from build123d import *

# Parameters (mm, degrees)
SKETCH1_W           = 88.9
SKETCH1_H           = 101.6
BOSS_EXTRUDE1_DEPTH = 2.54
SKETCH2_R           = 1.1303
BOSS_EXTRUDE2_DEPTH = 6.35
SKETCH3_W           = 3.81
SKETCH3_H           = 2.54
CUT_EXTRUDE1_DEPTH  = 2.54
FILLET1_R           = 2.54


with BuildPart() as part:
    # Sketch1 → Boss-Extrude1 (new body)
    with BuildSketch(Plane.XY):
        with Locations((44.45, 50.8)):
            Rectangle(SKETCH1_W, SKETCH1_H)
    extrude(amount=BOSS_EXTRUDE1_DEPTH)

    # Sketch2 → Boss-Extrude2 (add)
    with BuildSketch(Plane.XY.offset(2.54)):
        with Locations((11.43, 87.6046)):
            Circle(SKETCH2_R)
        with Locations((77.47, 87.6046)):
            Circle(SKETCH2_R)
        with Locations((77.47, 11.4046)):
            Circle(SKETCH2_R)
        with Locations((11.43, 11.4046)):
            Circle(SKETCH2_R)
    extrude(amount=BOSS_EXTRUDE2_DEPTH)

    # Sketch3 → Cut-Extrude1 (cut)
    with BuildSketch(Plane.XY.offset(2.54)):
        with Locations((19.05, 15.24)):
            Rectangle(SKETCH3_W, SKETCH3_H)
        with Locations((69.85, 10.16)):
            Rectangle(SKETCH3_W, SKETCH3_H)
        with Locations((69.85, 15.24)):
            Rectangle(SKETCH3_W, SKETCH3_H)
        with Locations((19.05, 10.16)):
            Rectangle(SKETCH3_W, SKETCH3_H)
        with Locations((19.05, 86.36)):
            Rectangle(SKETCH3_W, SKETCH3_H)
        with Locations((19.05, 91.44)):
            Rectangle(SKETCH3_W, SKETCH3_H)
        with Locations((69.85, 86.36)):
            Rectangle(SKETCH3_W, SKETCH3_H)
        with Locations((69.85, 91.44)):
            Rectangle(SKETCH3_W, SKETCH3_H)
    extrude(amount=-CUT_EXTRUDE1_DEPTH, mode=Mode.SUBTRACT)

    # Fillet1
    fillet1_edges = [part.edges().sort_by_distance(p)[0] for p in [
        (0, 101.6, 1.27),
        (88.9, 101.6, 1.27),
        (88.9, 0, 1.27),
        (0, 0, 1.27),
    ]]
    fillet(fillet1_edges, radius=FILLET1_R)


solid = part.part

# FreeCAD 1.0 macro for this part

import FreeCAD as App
import Part
import Sketcher
Q = App.Units.Quantity


def edges_at(feature, points):
    """Names of the edges that pass closest to the given points."""
    edges = feature.Shape.Edges
    near = lambda p: min(range(len(edges)), key=lambda i: edges[i].distToShape(Part.Vertex(*p))[0])
    return sorted({f"Edge{near(p) + 1}" for p in points})


def add_polygon(sketch, points):
    """Adds a closed chain of lines whose ends are joined by coincident constraints."""
    first, n = sketch.GeometryCount, len(points)
    for a, b in zip(points, points[1:] + points[:1]):
        sketch.addGeometry(Part.LineSegment(App.Vector(*a, 0), App.Vector(*b, 0)), False)
    for i in range(n):
        sketch.addConstraint(Sketcher.Constraint("Coincident", first + i, 2, first + (i + 1) % n, 1))

doc = App.newDocument("Part")
body = doc.addObject("PartDesign::Body", "Body")

# Sketch on XY plane
sketch1 = doc.addObject("Sketcher::SketchObject", "Sketch")
body.addObject(sketch1)
sketch1.AttachmentSupport = (doc.XY_Plane, [""])
sketch1.MapMode = "FlatFace"
add_polygon(sketch1, [(0, 102), (0, 0), (89, 0), (89, 102)])  # lines 0-3
sketch1.addConstraint(Sketcher.Constraint("Vertical", 0))
sketch1.addConstraint(Sketcher.Constraint("Horizontal", 1))
sketch1.addConstraint(Sketcher.Constraint("Vertical", 2))
sketch1.addConstraint(Sketcher.Constraint("Horizontal", 3))
sketch1.addConstraint(Sketcher.Constraint("Coincident", 0, 2, -1, 1))
sketch1.addConstraint(Sketcher.Constraint("DistanceY", 0, 2, 0, 1, Q("4 in")))
sketch1.addConstraint(Sketcher.Constraint("DistanceX", 1, 1, 1, 2, Q("3.5 in")))
pad1 = doc.addObject("PartDesign::Pad", "Pad")
body.addObject(pad1)
pad1.Profile = sketch1
pad1.Length = Q("0.1 in")

# Sketch on XY plane
sketch2 = doc.addObject("Sketcher::SketchObject", "Sketch001")
body.addObject(sketch2)
sketch2.AttachmentSupport = (doc.XY_Plane, [""])
sketch2.MapMode = "FlatFace"
sketch2.AttachmentOffset = App.Placement(App.Vector(0, 0, 0.1 * 25.4), App.Rotation())
sketch2.addGeometry(Part.Circle(App.Vector(11.4, 87.6, 0), App.Vector(0, 0, 1), 1.1), False)
sketch2.addGeometry(Part.Circle(App.Vector(77.5, 87.6, 0), App.Vector(0, 0, 1), 1.1), False)
sketch2.addGeometry(Part.Circle(App.Vector(77.5, 11.4, 0), App.Vector(0, 0, 1), 1.1), False)
sketch2.addGeometry(Part.Circle(App.Vector(11.4, 11.4, 0), App.Vector(0, 0, 1), 1.1), False)
sketch2.addConstraint(Sketcher.Constraint("Equal", 0, 1))
sketch2.addConstraint(Sketcher.Constraint("Equal", 1, 2))
sketch2.addConstraint(Sketcher.Constraint("Equal", 2, 3))
sketch2.addConstraint(Sketcher.Constraint("Horizontal", 0, 3, 1, 3))
sketch2.addConstraint(Sketcher.Constraint("Horizontal", 2, 3, 3, 3))
sketch2.addConstraint(Sketcher.Constraint("Vertical", 1, 3, 2, 3))
sketch2.addConstraint(Sketcher.Constraint("Vertical", 0, 3, 3, 3))
sketch2.addConstraint(Sketcher.Constraint("Diameter", 0, Q("0.089 in")))
sketch2.addConstraint(Sketcher.Constraint("DistanceY", 2, 3, 1, 3, Q("3 in")))
sketch2.addConstraint(Sketcher.Constraint("DistanceX", 0, 3, 1, 3, Q("2.6 in")))
sketch2.addConstraint(Sketcher.Constraint("DistanceX", -1, 1, 0, 3, Q("0.45 in")))
sketch2.addConstraint(Sketcher.Constraint("DistanceY", -1, 1, 0, 3, Q("3.449 in")))
pad2 = doc.addObject("PartDesign::Pad", "Pad001")
body.addObject(pad2)
pad2.Profile = sketch2
pad2.Length = Q("0.25 in")

# Sketch on XY plane
sketch3 = doc.addObject("Sketcher::SketchObject", "Sketch002")
body.addObject(sketch3)
sketch3.AttachmentSupport = (doc.XY_Plane, [""])
sketch3.MapMode = "FlatFace"
sketch3.AttachmentOffset = App.Placement(App.Vector(0, 0, 0.1 * 25.4), App.Rotation())
add_polygon(sketch3, [(17.1, 16.5), (17.1, 14), (21, 14), (21, 16.5)])  # lines 0-3
add_polygon(sketch3, [(67.9, 11.4), (67.9, 8.9), (71.8, 8.9), (71.8, 11.4)])  # lines 4-7
add_polygon(sketch3, [(67.9, 16.5), (67.9, 14), (71.8, 14), (71.8, 16.5)])  # lines 8-11
add_polygon(sketch3, [(17.1, 11.4), (17.1, 8.9), (21, 8.9), (21, 11.4)])  # lines 12-15
add_polygon(sketch3, [(17.1, 87.6), (17.1, 85.1), (21, 85.1), (21, 87.6)])  # lines 16-19
add_polygon(sketch3, [(17.1, 92.7), (17.1, 90.2), (21, 90.2), (21, 92.7)])  # lines 20-23
add_polygon(sketch3, [(67.9, 87.6), (67.9, 85.1), (71.8, 85.1), (71.8, 87.6)])  # lines 24-27
add_polygon(sketch3, [(67.9, 92.7), (67.9, 90.2), (71.8, 90.2), (71.8, 92.7)])  # lines 28-31
sketch3.addConstraint(Sketcher.Constraint("Vertical", 0))
sketch3.addConstraint(Sketcher.Constraint("Horizontal", 1))
sketch3.addConstraint(Sketcher.Constraint("Vertical", 2))
sketch3.addConstraint(Sketcher.Constraint("Horizontal", 3))
sketch3.addConstraint(Sketcher.Constraint("Vertical", 4))
sketch3.addConstraint(Sketcher.Constraint("Horizontal", 5))
sketch3.addConstraint(Sketcher.Constraint("Vertical", 6))
sketch3.addConstraint(Sketcher.Constraint("Horizontal", 7))
sketch3.addConstraint(Sketcher.Constraint("Vertical", 8))
sketch3.addConstraint(Sketcher.Constraint("Horizontal", 9))
sketch3.addConstraint(Sketcher.Constraint("Vertical", 10))
sketch3.addConstraint(Sketcher.Constraint("Horizontal", 11))
sketch3.addConstraint(Sketcher.Constraint("Vertical", 12))
sketch3.addConstraint(Sketcher.Constraint("Horizontal", 13))
sketch3.addConstraint(Sketcher.Constraint("Vertical", 14))
sketch3.addConstraint(Sketcher.Constraint("Horizontal", 15))
sketch3.addConstraint(Sketcher.Constraint("Vertical", 16))
sketch3.addConstraint(Sketcher.Constraint("Horizontal", 17))
sketch3.addConstraint(Sketcher.Constraint("Vertical", 18))
sketch3.addConstraint(Sketcher.Constraint("Horizontal", 19))
sketch3.addConstraint(Sketcher.Constraint("Vertical", 20))
sketch3.addConstraint(Sketcher.Constraint("Horizontal", 21))
sketch3.addConstraint(Sketcher.Constraint("Vertical", 22))
sketch3.addConstraint(Sketcher.Constraint("Horizontal", 23))
sketch3.addConstraint(Sketcher.Constraint("Vertical", 24))
sketch3.addConstraint(Sketcher.Constraint("Horizontal", 25))
sketch3.addConstraint(Sketcher.Constraint("Vertical", 26))
sketch3.addConstraint(Sketcher.Constraint("Horizontal", 27))
sketch3.addConstraint(Sketcher.Constraint("Vertical", 28))
sketch3.addConstraint(Sketcher.Constraint("Horizontal", 29))
sketch3.addConstraint(Sketcher.Constraint("Vertical", 30))
sketch3.addConstraint(Sketcher.Constraint("Horizontal", 31))
sketch3.addConstraint(Sketcher.Constraint("Horizontal", 1, 2, 8, 2))
sketch3.addConstraint(Sketcher.Constraint("Horizontal", 3, 2, 10, 2))
sketch3.addConstraint(Sketcher.Constraint("Horizontal", 5, 2, 12, 2))
sketch3.addConstraint(Sketcher.Constraint("Horizontal", 7, 2, 14, 2))
sketch3.addConstraint(Sketcher.Constraint("Horizontal", 17, 2, 24, 2))
sketch3.addConstraint(Sketcher.Constraint("Horizontal", 19, 2, 26, 2))
sketch3.addConstraint(Sketcher.Constraint("Horizontal", 21, 2, 28, 2))
sketch3.addConstraint(Sketcher.Constraint("Horizontal", 23, 2, 30, 2))
sketch3.addConstraint(Sketcher.Constraint("Vertical", 7, 2, 8, 2))
sketch3.addConstraint(Sketcher.Constraint("Vertical", 6, 2, 9, 2))
sketch3.addConstraint(Sketcher.Constraint("Vertical", 3, 2, 12, 2))
sketch3.addConstraint(Sketcher.Constraint("Vertical", 2, 2, 13, 2))
sketch3.addConstraint(Sketcher.Constraint("Vertical", 15, 2, 16, 2))
sketch3.addConstraint(Sketcher.Constraint("Vertical", 14, 2, 17, 2))
sketch3.addConstraint(Sketcher.Constraint("Vertical", 19, 2, 20, 2))
sketch3.addConstraint(Sketcher.Constraint("Vertical", 18, 2, 21, 2))
sketch3.addConstraint(Sketcher.Constraint("Vertical", 11, 2, 24, 2))
sketch3.addConstraint(Sketcher.Constraint("Vertical", 10, 2, 25, 2))
sketch3.addConstraint(Sketcher.Constraint("Vertical", 27, 2, 28, 2))
sketch3.addConstraint(Sketcher.Constraint("Vertical", 26, 2, 29, 2))
sketch3.addConstraint(Sketcher.Constraint("Equal", 3, 5))
sketch3.addConstraint(Sketcher.Constraint("Equal", 2, 4))
sketch3.addConstraint(Sketcher.Constraint("Equal", 14, 16))
sketch3.addConstraint(Sketcher.Constraint("Equal", 18, 20))
sketch3.addConstraint(Sketcher.Constraint("DistanceY", 0, 2, 0, 1, Q("0.1 in")))
sketch3.addConstraint(Sketcher.Constraint("DistanceX", 0, 2, 4, 2, Q("2 in")))
sketch3.addConstraint(Sketcher.Constraint("DistanceX", 1, 1, 1, 2, Q("0.15 in")))
sketch3.addConstraint(Sketcher.Constraint("DistanceY", 4, 2, 1, 2, Q("0.2 in")))
sketch3.addConstraint(Sketcher.Constraint("DistanceY", 3, 2, 16, 2, Q("2.7 in")))
sketch3.addConstraint(Sketcher.Constraint("DistanceY", 19, 2, 20, 2, Q("0.1 in")))
sketch3.addConstraint(Sketcher.Constraint("DistanceY", -1, 1, 0, 2, Q("0.55 in")))
sketch3.addConstraint(Sketcher.Constraint("DistanceX", -1, 1, 0, 2, Q("0.675 in")))
pocket1 = doc.addObject("PartDesign::Pocket", "Pocket")
body.addObject(pocket1)
pocket1.Profile = sketch3
pocket1.Length = Q("0.1 in")
doc.recompute()

fillet = doc.addObject("PartDesign::Fillet", "Fillet")
body.addObject(fillet)
fillet.Base = (pocket1, edges_at(pocket1, [
    (0, 101.6, 1.27),
    (88.9, 101.6, 1.27),
    (88.9, 0, 1.27),
    (0, 0, 1.27),
]))
fillet.Radius = Q("0.1 in")

doc.recompute()
